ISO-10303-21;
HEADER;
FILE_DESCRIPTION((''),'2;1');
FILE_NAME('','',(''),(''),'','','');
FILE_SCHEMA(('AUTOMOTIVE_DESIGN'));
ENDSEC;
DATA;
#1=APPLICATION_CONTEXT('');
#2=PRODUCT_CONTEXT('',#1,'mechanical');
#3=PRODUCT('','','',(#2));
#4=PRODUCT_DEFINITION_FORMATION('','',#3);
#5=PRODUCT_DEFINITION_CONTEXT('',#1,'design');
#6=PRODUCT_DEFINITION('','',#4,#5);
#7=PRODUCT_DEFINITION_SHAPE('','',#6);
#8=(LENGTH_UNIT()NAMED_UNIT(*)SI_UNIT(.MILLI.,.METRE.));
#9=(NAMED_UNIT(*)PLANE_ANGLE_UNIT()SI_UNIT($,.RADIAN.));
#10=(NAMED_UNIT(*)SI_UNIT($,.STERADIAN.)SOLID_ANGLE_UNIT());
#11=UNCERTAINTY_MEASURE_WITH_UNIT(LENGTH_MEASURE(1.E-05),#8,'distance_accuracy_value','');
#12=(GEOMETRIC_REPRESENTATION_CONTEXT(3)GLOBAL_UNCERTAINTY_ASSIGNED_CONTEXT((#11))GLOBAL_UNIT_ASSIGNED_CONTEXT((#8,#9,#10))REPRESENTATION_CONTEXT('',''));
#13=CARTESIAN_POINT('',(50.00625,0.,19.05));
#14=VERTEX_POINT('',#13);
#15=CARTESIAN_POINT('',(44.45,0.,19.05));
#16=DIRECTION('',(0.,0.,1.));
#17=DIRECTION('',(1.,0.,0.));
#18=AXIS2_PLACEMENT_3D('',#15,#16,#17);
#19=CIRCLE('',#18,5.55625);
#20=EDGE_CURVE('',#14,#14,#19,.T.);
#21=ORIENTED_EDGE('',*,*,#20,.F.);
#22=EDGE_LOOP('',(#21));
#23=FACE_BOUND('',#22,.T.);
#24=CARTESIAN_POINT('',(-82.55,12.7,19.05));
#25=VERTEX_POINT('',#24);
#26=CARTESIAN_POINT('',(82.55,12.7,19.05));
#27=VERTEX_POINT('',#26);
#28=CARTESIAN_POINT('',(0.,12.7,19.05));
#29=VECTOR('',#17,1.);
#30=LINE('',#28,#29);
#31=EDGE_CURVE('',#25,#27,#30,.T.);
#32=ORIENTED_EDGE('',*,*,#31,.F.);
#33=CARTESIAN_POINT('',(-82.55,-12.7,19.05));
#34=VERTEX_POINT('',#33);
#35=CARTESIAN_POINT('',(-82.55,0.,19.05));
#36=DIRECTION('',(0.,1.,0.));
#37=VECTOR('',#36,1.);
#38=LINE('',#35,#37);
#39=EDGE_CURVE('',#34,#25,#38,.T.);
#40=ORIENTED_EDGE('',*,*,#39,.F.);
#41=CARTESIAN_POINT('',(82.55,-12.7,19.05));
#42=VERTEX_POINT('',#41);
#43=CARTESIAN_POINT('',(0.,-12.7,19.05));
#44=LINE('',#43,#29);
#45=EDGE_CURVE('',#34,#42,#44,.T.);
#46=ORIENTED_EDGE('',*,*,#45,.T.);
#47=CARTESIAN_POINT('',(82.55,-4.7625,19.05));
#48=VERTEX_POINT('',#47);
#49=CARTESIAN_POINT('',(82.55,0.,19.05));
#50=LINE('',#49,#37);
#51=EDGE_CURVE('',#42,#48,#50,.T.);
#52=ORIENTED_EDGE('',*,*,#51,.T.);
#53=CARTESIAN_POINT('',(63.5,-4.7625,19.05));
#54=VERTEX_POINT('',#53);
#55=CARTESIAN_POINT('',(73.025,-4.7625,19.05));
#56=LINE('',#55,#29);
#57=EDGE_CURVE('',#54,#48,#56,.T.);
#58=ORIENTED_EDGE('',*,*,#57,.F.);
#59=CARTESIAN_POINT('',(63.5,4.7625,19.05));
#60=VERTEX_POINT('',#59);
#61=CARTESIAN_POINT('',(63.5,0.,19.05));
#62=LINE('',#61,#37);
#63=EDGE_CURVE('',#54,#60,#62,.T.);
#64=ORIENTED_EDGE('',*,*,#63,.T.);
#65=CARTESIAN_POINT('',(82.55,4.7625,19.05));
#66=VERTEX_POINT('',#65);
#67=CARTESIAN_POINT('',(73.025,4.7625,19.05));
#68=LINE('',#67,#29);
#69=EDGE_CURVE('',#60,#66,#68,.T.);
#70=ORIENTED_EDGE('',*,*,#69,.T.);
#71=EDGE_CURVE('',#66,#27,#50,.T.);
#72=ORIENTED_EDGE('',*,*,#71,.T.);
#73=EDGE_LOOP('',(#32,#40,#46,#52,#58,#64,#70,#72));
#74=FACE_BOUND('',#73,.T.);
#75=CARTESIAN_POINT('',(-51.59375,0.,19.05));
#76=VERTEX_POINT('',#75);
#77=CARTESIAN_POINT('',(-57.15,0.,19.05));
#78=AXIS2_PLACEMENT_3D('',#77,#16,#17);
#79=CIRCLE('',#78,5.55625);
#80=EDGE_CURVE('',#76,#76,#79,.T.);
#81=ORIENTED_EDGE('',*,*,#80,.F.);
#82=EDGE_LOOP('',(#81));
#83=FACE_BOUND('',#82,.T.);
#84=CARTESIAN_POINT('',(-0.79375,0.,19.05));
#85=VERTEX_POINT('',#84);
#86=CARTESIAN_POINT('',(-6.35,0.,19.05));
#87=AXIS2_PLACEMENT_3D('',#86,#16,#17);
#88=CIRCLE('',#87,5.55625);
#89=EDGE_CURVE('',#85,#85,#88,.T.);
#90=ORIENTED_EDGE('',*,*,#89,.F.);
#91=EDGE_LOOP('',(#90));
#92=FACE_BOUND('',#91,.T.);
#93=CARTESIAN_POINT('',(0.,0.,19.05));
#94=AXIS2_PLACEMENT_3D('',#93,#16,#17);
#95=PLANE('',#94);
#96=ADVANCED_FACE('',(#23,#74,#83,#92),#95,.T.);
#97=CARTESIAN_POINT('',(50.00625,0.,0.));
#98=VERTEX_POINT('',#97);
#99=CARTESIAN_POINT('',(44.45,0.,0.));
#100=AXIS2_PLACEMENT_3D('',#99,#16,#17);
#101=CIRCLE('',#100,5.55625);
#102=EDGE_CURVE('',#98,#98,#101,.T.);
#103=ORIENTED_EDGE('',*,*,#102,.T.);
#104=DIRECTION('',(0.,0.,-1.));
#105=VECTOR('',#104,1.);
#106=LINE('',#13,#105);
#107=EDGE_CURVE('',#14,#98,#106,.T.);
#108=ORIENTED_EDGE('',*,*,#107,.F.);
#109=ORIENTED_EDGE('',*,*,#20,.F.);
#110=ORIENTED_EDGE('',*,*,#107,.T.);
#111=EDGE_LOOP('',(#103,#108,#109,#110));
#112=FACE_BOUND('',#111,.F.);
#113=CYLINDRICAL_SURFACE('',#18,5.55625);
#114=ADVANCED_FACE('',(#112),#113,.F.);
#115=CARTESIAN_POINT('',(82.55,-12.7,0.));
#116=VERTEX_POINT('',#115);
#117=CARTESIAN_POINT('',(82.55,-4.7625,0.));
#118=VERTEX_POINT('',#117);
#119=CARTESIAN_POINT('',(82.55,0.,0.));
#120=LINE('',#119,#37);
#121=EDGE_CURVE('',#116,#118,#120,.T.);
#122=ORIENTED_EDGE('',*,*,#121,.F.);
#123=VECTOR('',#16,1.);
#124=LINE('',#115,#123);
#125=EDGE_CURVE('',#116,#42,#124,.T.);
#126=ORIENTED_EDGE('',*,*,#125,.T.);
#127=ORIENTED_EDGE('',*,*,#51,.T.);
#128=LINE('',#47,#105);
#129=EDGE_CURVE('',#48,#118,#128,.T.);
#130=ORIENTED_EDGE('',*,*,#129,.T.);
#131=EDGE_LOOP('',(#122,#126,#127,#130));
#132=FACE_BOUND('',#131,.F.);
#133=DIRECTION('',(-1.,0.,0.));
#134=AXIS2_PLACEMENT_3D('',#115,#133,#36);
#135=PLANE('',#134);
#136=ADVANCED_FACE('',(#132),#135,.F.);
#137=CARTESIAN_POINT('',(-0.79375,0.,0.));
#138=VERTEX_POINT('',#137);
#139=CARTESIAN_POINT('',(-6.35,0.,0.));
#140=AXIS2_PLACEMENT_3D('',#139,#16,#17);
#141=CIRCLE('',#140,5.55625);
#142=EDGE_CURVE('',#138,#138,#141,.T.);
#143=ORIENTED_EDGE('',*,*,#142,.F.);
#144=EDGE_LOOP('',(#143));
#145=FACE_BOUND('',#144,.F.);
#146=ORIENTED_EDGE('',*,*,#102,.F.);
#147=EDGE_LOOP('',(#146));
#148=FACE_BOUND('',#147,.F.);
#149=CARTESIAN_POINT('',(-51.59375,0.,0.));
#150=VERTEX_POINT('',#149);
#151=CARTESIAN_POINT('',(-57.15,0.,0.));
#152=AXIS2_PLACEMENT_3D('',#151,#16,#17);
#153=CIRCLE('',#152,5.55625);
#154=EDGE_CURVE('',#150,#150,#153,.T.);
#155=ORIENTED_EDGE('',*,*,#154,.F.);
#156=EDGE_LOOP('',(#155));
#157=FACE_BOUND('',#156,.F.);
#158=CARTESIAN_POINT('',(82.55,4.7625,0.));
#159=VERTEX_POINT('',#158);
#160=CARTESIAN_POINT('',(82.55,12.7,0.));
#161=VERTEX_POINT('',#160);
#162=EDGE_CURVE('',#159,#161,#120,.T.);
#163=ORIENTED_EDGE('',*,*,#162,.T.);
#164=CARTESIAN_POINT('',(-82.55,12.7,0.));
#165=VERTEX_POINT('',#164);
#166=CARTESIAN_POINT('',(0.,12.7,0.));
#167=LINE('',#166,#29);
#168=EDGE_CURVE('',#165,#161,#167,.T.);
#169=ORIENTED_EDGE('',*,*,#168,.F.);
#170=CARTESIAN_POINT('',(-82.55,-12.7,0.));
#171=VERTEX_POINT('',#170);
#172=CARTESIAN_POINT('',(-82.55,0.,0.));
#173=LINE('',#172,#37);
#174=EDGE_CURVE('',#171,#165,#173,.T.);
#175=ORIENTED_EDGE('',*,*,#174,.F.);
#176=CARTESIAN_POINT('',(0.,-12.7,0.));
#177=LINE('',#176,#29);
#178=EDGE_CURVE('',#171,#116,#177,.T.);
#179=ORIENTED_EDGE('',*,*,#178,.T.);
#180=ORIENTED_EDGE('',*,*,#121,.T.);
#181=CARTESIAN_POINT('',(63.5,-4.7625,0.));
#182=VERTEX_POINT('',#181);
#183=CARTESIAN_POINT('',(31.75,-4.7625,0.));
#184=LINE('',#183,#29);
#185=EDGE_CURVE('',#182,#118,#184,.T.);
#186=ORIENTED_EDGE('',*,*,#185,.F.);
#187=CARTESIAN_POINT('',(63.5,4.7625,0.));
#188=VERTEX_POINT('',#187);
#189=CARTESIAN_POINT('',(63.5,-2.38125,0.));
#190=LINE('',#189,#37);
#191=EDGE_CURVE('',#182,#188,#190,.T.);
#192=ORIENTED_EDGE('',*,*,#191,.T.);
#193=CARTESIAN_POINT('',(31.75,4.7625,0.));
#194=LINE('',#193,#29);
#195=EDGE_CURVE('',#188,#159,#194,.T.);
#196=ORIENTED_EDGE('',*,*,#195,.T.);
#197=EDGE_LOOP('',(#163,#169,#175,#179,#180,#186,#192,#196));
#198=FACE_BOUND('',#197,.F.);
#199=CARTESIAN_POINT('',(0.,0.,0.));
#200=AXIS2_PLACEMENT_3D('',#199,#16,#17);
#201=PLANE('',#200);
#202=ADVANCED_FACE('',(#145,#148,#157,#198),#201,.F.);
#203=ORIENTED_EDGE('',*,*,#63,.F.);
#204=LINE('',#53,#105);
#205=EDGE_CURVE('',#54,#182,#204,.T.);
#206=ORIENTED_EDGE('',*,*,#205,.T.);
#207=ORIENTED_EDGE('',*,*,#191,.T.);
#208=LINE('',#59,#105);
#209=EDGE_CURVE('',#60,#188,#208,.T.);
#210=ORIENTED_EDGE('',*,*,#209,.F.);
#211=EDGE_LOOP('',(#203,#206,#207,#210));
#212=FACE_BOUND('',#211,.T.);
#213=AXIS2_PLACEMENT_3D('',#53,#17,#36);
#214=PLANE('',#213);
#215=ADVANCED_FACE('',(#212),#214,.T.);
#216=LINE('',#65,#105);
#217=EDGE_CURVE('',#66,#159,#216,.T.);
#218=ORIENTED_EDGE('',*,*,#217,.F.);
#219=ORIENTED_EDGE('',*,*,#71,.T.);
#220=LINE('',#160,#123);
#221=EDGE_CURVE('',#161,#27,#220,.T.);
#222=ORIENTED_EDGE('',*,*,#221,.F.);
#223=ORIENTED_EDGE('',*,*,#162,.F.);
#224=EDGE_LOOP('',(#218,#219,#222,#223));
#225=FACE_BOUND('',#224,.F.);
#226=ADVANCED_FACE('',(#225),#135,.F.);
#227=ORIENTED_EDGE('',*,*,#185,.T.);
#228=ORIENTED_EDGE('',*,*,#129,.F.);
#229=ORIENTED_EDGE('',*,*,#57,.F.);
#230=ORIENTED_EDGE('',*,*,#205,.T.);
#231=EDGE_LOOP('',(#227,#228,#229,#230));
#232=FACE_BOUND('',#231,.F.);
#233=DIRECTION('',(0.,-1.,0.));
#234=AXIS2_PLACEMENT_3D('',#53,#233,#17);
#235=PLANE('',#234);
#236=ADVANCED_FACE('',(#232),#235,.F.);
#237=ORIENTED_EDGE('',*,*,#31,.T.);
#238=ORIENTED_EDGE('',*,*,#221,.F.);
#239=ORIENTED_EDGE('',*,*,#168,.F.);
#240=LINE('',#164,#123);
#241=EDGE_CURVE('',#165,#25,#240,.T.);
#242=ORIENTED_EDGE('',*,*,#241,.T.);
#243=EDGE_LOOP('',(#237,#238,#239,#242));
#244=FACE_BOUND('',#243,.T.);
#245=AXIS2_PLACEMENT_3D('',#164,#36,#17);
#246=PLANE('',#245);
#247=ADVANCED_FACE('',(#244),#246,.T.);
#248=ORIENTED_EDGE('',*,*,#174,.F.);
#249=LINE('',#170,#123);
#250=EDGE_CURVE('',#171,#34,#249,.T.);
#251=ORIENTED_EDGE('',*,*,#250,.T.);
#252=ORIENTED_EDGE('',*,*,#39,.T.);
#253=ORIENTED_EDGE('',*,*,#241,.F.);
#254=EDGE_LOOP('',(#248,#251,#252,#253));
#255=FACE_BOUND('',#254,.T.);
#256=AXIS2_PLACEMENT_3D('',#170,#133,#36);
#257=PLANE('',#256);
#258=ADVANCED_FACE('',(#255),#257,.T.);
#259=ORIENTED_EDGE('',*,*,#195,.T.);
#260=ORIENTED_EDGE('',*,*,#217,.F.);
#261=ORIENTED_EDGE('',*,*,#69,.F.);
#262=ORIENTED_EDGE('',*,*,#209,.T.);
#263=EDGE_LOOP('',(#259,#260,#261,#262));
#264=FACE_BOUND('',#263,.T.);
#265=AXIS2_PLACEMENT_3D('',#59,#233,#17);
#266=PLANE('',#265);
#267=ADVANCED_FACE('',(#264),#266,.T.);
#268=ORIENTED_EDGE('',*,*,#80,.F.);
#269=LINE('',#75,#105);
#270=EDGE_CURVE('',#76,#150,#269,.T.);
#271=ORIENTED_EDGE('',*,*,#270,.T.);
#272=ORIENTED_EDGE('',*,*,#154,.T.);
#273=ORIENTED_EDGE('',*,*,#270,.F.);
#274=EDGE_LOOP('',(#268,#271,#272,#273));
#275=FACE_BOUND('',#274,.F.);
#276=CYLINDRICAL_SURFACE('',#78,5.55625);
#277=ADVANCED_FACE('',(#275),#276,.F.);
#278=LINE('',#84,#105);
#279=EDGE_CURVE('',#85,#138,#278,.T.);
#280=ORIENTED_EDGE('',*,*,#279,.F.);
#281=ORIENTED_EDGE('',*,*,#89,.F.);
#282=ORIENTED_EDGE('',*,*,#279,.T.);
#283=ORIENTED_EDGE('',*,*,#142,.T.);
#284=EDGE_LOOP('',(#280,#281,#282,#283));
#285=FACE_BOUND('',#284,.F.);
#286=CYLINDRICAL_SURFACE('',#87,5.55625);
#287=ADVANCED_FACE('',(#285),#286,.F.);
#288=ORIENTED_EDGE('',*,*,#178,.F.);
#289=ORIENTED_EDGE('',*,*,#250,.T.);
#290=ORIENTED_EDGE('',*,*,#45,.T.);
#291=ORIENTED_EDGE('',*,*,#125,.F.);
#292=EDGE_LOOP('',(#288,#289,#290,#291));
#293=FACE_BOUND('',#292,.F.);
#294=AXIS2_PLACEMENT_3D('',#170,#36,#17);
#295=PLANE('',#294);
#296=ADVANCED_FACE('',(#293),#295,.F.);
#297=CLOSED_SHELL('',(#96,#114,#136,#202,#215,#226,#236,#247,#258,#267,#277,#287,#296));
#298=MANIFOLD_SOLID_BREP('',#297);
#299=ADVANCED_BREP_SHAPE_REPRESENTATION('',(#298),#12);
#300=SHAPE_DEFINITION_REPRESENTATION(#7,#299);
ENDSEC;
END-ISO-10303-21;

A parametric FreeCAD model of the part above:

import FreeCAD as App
import Part
import Sketcher
from FreeCAD import Vector
Q = App.Units.Quantity

doc = App.newDocument("Part")
params = doc.addObject("Spreadsheet::Sheet", "Params")
for row, (alias, value) in enumerate([
    ("sketch1_height", "1 in"),
    ("sketch1_width", "6.5 in"),
    ("pad1_length", "0.75 in"),
    ("sketch2_width", "0.75 in"),
    ("sketch2_height", "0.375 in"),
    ("sketch3_diameter", "0.4375 in"),
], start=1):
    params.set(f"A{row}", alias)
    params.set(f"B{row}", "=" + value)
    params.setAlias(f"B{row}", alias)

body = doc.addObject("PartDesign::Body", "Body")

# Sketch on XY plane
sketch1 = body.newObject("Sketcher::SketchObject", "Sketch")
sketch1.AttachmentSupport = (doc.getObject("XY_Plane"), [""])
sketch1.MapMode = "FlatFace"
sketch1.addGeometry(Part.LineSegment(Vector(-82.55, 12.7, 0), Vector(-82.55, -12.7, 0)), False)
sketch1.addGeometry(Part.LineSegment(Vector(-82.55, -12.7, 0), Vector(82.55, -12.7, 0)), False)
sketch1.addGeometry(Part.LineSegment(Vector(82.55, -12.7, 0), Vector(82.55, 12.7, 0)), False)
sketch1.addGeometry(Part.LineSegment(Vector(82.55, 12.7, 0), Vector(-82.55, 12.7, 0)), False)
sketch1.addConstraint(Sketcher.Constraint("Coincident", 0, 2, 1, 1))
sketch1.addConstraint(Sketcher.Constraint("Coincident", 1, 2, 2, 1))
sketch1.addConstraint(Sketcher.Constraint("Coincident", 2, 2, 3, 1))
sketch1.addConstraint(Sketcher.Constraint("Coincident", 3, 2, 0, 1))
sketch1.addConstraint(Sketcher.Constraint("Vertical", 0))
sketch1.addConstraint(Sketcher.Constraint("Horizontal", 1))
sketch1.addConstraint(Sketcher.Constraint("Vertical", 2))
sketch1.addConstraint(Sketcher.Constraint("Horizontal", 3))
sketch1.addConstraint(Sketcher.Constraint("Symmetric", 0, 2, 2, 2, -1, 1))
sketch1.addConstraint(Sketcher.Constraint("DistanceY", 0, 2, 0, 1, Q("1 in")))
sketch1.addConstraint(Sketcher.Constraint("DistanceX", 1, 1, 1, 2, Q("6.5 in")))
sketch1.setExpression("Constraints[9]", "Params.sketch1_height")
sketch1.setExpression("Constraints[10]", "Params.sketch1_width")
pad1 = body.newObject("PartDesign::Pad", "Pad")
pad1.Profile = sketch1
pad1.setExpression("Length", "Params.pad1_length")

# Sketch on XY plane
sketch2 = body.newObject("Sketcher::SketchObject", "Sketch001")
sketch2.AttachmentSupport = (doc.getObject("XY_Plane"), [""])
sketch2.MapMode = "FlatFace"
sketch2.AttachmentOffset = App.Placement(Vector(0, 0, 0.75 * 25.4), App.Rotation())
sketch2.addGeometry(Part.LineSegment(Vector(63.5, 4.7625, 0), Vector(63.5, -4.7625, 0)), False)
sketch2.addGeometry(Part.LineSegment(Vector(63.5, -4.7625, 0), Vector(82.55, -4.7625, 0)), False)
sketch2.addGeometry(Part.LineSegment(Vector(82.55, -4.7625, 0), Vector(82.55, 4.7625, 0)), False)
sketch2.addGeometry(Part.LineSegment(Vector(82.55, 4.7625, 0), Vector(63.5, 4.7625, 0)), False)
sketch2.addConstraint(Sketcher.Constraint("Coincident", 0, 2, 1, 1))
sketch2.addConstraint(Sketcher.Constraint("Coincident", 1, 2, 2, 1))
sketch2.addConstraint(Sketcher.Constraint("Coincident", 2, 2, 3, 1))
sketch2.addConstraint(Sketcher.Constraint("Coincident", 3, 2, 0, 1))
sketch2.addConstraint(Sketcher.Constraint("Vertical", 0))
sketch2.addConstraint(Sketcher.Constraint("Horizontal", 1))
sketch2.addConstraint(Sketcher.Constraint("Vertical", 2))
sketch2.addConstraint(Sketcher.Constraint("Horizontal", 3))
sketch2.addConstraint(Sketcher.Constraint("DistanceX", 1, 1, 1, 2, Q("0.75 in")))
sketch2.addConstraint(Sketcher.Constraint("DistanceX", -1, 1, 0, 2, Q("2.5 in")))
sketch2.addConstraint(Sketcher.Constraint("DistanceY", 0, 2, 0, 1, Q("0.375 in")))
sketch2.addConstraint(Sketcher.Constraint("DistanceY", 0, 2, -1, 1, Q("0.1875 in")))
sketch2.setExpression("Constraints[8]", "Params.sketch2_width")
sketch2.setExpression("Constraints[10]", "Params.sketch2_height")
pocket1 = body.newObject("PartDesign::Pocket", "Pocket")
pocket1.Profile = sketch2
pocket1.Type = "ThroughAll"

# Sketch on XY plane
sketch3 = body.newObject("Sketcher::SketchObject", "Sketch002")
sketch3.AttachmentSupport = (doc.getObject("XY_Plane"), [""])
sketch3.MapMode = "FlatFace"
sketch3.AttachmentOffset = App.Placement(Vector(0, 0, 0.75 * 25.4), App.Rotation())
sketch3.addGeometry(Part.Circle(Vector(-57.15, 0, 0), Vector(0, 0, 1), 5.55625), False)
sketch3.addGeometry(Part.Circle(Vector(-6.35, 0, 0), Vector(0, 0, 1), 5.55625), False)
sketch3.addGeometry(Part.Circle(Vector(44.45, 0, 0), Vector(0, 0, 1), 5.55625), False)
sketch3.addConstraint(Sketcher.Constraint("Equal", 0, 1))
sketch3.addConstraint(Sketcher.Constraint("Equal", 1, 2))
sketch3.addConstraint(Sketcher.Constraint("PointOnObject", 0, 3, -1))
sketch3.addConstraint(Sketcher.Constraint("PointOnObject", 1, 3, -1))
sketch3.addConstraint(Sketcher.Constraint("PointOnObject", 2, 3, -1))
sketch3.addConstraint(Sketcher.Constraint("Diameter", 0, Q("0.4375 in")))
sketch3.addConstraint(Sketcher.Constraint("DistanceX", 0, 3, 1, 3, Q("2 in")))
sketch3.addConstraint(Sketcher.Constraint("DistanceX", 1, 3, 2, 3, Q("2 in")))
sketch3.addConstraint(Sketcher.Constraint("DistanceX", 0, 3, -1, 1, Q("2.25 in")))
sketch3.setExpression("Constraints[5]", "Params.sketch3_diameter")
pocket2 = body.newObject("PartDesign::Pocket", "Pocket001")
pocket2.Profile = sketch3
pocket2.Type = "ThroughAll"

doc.recompute()
